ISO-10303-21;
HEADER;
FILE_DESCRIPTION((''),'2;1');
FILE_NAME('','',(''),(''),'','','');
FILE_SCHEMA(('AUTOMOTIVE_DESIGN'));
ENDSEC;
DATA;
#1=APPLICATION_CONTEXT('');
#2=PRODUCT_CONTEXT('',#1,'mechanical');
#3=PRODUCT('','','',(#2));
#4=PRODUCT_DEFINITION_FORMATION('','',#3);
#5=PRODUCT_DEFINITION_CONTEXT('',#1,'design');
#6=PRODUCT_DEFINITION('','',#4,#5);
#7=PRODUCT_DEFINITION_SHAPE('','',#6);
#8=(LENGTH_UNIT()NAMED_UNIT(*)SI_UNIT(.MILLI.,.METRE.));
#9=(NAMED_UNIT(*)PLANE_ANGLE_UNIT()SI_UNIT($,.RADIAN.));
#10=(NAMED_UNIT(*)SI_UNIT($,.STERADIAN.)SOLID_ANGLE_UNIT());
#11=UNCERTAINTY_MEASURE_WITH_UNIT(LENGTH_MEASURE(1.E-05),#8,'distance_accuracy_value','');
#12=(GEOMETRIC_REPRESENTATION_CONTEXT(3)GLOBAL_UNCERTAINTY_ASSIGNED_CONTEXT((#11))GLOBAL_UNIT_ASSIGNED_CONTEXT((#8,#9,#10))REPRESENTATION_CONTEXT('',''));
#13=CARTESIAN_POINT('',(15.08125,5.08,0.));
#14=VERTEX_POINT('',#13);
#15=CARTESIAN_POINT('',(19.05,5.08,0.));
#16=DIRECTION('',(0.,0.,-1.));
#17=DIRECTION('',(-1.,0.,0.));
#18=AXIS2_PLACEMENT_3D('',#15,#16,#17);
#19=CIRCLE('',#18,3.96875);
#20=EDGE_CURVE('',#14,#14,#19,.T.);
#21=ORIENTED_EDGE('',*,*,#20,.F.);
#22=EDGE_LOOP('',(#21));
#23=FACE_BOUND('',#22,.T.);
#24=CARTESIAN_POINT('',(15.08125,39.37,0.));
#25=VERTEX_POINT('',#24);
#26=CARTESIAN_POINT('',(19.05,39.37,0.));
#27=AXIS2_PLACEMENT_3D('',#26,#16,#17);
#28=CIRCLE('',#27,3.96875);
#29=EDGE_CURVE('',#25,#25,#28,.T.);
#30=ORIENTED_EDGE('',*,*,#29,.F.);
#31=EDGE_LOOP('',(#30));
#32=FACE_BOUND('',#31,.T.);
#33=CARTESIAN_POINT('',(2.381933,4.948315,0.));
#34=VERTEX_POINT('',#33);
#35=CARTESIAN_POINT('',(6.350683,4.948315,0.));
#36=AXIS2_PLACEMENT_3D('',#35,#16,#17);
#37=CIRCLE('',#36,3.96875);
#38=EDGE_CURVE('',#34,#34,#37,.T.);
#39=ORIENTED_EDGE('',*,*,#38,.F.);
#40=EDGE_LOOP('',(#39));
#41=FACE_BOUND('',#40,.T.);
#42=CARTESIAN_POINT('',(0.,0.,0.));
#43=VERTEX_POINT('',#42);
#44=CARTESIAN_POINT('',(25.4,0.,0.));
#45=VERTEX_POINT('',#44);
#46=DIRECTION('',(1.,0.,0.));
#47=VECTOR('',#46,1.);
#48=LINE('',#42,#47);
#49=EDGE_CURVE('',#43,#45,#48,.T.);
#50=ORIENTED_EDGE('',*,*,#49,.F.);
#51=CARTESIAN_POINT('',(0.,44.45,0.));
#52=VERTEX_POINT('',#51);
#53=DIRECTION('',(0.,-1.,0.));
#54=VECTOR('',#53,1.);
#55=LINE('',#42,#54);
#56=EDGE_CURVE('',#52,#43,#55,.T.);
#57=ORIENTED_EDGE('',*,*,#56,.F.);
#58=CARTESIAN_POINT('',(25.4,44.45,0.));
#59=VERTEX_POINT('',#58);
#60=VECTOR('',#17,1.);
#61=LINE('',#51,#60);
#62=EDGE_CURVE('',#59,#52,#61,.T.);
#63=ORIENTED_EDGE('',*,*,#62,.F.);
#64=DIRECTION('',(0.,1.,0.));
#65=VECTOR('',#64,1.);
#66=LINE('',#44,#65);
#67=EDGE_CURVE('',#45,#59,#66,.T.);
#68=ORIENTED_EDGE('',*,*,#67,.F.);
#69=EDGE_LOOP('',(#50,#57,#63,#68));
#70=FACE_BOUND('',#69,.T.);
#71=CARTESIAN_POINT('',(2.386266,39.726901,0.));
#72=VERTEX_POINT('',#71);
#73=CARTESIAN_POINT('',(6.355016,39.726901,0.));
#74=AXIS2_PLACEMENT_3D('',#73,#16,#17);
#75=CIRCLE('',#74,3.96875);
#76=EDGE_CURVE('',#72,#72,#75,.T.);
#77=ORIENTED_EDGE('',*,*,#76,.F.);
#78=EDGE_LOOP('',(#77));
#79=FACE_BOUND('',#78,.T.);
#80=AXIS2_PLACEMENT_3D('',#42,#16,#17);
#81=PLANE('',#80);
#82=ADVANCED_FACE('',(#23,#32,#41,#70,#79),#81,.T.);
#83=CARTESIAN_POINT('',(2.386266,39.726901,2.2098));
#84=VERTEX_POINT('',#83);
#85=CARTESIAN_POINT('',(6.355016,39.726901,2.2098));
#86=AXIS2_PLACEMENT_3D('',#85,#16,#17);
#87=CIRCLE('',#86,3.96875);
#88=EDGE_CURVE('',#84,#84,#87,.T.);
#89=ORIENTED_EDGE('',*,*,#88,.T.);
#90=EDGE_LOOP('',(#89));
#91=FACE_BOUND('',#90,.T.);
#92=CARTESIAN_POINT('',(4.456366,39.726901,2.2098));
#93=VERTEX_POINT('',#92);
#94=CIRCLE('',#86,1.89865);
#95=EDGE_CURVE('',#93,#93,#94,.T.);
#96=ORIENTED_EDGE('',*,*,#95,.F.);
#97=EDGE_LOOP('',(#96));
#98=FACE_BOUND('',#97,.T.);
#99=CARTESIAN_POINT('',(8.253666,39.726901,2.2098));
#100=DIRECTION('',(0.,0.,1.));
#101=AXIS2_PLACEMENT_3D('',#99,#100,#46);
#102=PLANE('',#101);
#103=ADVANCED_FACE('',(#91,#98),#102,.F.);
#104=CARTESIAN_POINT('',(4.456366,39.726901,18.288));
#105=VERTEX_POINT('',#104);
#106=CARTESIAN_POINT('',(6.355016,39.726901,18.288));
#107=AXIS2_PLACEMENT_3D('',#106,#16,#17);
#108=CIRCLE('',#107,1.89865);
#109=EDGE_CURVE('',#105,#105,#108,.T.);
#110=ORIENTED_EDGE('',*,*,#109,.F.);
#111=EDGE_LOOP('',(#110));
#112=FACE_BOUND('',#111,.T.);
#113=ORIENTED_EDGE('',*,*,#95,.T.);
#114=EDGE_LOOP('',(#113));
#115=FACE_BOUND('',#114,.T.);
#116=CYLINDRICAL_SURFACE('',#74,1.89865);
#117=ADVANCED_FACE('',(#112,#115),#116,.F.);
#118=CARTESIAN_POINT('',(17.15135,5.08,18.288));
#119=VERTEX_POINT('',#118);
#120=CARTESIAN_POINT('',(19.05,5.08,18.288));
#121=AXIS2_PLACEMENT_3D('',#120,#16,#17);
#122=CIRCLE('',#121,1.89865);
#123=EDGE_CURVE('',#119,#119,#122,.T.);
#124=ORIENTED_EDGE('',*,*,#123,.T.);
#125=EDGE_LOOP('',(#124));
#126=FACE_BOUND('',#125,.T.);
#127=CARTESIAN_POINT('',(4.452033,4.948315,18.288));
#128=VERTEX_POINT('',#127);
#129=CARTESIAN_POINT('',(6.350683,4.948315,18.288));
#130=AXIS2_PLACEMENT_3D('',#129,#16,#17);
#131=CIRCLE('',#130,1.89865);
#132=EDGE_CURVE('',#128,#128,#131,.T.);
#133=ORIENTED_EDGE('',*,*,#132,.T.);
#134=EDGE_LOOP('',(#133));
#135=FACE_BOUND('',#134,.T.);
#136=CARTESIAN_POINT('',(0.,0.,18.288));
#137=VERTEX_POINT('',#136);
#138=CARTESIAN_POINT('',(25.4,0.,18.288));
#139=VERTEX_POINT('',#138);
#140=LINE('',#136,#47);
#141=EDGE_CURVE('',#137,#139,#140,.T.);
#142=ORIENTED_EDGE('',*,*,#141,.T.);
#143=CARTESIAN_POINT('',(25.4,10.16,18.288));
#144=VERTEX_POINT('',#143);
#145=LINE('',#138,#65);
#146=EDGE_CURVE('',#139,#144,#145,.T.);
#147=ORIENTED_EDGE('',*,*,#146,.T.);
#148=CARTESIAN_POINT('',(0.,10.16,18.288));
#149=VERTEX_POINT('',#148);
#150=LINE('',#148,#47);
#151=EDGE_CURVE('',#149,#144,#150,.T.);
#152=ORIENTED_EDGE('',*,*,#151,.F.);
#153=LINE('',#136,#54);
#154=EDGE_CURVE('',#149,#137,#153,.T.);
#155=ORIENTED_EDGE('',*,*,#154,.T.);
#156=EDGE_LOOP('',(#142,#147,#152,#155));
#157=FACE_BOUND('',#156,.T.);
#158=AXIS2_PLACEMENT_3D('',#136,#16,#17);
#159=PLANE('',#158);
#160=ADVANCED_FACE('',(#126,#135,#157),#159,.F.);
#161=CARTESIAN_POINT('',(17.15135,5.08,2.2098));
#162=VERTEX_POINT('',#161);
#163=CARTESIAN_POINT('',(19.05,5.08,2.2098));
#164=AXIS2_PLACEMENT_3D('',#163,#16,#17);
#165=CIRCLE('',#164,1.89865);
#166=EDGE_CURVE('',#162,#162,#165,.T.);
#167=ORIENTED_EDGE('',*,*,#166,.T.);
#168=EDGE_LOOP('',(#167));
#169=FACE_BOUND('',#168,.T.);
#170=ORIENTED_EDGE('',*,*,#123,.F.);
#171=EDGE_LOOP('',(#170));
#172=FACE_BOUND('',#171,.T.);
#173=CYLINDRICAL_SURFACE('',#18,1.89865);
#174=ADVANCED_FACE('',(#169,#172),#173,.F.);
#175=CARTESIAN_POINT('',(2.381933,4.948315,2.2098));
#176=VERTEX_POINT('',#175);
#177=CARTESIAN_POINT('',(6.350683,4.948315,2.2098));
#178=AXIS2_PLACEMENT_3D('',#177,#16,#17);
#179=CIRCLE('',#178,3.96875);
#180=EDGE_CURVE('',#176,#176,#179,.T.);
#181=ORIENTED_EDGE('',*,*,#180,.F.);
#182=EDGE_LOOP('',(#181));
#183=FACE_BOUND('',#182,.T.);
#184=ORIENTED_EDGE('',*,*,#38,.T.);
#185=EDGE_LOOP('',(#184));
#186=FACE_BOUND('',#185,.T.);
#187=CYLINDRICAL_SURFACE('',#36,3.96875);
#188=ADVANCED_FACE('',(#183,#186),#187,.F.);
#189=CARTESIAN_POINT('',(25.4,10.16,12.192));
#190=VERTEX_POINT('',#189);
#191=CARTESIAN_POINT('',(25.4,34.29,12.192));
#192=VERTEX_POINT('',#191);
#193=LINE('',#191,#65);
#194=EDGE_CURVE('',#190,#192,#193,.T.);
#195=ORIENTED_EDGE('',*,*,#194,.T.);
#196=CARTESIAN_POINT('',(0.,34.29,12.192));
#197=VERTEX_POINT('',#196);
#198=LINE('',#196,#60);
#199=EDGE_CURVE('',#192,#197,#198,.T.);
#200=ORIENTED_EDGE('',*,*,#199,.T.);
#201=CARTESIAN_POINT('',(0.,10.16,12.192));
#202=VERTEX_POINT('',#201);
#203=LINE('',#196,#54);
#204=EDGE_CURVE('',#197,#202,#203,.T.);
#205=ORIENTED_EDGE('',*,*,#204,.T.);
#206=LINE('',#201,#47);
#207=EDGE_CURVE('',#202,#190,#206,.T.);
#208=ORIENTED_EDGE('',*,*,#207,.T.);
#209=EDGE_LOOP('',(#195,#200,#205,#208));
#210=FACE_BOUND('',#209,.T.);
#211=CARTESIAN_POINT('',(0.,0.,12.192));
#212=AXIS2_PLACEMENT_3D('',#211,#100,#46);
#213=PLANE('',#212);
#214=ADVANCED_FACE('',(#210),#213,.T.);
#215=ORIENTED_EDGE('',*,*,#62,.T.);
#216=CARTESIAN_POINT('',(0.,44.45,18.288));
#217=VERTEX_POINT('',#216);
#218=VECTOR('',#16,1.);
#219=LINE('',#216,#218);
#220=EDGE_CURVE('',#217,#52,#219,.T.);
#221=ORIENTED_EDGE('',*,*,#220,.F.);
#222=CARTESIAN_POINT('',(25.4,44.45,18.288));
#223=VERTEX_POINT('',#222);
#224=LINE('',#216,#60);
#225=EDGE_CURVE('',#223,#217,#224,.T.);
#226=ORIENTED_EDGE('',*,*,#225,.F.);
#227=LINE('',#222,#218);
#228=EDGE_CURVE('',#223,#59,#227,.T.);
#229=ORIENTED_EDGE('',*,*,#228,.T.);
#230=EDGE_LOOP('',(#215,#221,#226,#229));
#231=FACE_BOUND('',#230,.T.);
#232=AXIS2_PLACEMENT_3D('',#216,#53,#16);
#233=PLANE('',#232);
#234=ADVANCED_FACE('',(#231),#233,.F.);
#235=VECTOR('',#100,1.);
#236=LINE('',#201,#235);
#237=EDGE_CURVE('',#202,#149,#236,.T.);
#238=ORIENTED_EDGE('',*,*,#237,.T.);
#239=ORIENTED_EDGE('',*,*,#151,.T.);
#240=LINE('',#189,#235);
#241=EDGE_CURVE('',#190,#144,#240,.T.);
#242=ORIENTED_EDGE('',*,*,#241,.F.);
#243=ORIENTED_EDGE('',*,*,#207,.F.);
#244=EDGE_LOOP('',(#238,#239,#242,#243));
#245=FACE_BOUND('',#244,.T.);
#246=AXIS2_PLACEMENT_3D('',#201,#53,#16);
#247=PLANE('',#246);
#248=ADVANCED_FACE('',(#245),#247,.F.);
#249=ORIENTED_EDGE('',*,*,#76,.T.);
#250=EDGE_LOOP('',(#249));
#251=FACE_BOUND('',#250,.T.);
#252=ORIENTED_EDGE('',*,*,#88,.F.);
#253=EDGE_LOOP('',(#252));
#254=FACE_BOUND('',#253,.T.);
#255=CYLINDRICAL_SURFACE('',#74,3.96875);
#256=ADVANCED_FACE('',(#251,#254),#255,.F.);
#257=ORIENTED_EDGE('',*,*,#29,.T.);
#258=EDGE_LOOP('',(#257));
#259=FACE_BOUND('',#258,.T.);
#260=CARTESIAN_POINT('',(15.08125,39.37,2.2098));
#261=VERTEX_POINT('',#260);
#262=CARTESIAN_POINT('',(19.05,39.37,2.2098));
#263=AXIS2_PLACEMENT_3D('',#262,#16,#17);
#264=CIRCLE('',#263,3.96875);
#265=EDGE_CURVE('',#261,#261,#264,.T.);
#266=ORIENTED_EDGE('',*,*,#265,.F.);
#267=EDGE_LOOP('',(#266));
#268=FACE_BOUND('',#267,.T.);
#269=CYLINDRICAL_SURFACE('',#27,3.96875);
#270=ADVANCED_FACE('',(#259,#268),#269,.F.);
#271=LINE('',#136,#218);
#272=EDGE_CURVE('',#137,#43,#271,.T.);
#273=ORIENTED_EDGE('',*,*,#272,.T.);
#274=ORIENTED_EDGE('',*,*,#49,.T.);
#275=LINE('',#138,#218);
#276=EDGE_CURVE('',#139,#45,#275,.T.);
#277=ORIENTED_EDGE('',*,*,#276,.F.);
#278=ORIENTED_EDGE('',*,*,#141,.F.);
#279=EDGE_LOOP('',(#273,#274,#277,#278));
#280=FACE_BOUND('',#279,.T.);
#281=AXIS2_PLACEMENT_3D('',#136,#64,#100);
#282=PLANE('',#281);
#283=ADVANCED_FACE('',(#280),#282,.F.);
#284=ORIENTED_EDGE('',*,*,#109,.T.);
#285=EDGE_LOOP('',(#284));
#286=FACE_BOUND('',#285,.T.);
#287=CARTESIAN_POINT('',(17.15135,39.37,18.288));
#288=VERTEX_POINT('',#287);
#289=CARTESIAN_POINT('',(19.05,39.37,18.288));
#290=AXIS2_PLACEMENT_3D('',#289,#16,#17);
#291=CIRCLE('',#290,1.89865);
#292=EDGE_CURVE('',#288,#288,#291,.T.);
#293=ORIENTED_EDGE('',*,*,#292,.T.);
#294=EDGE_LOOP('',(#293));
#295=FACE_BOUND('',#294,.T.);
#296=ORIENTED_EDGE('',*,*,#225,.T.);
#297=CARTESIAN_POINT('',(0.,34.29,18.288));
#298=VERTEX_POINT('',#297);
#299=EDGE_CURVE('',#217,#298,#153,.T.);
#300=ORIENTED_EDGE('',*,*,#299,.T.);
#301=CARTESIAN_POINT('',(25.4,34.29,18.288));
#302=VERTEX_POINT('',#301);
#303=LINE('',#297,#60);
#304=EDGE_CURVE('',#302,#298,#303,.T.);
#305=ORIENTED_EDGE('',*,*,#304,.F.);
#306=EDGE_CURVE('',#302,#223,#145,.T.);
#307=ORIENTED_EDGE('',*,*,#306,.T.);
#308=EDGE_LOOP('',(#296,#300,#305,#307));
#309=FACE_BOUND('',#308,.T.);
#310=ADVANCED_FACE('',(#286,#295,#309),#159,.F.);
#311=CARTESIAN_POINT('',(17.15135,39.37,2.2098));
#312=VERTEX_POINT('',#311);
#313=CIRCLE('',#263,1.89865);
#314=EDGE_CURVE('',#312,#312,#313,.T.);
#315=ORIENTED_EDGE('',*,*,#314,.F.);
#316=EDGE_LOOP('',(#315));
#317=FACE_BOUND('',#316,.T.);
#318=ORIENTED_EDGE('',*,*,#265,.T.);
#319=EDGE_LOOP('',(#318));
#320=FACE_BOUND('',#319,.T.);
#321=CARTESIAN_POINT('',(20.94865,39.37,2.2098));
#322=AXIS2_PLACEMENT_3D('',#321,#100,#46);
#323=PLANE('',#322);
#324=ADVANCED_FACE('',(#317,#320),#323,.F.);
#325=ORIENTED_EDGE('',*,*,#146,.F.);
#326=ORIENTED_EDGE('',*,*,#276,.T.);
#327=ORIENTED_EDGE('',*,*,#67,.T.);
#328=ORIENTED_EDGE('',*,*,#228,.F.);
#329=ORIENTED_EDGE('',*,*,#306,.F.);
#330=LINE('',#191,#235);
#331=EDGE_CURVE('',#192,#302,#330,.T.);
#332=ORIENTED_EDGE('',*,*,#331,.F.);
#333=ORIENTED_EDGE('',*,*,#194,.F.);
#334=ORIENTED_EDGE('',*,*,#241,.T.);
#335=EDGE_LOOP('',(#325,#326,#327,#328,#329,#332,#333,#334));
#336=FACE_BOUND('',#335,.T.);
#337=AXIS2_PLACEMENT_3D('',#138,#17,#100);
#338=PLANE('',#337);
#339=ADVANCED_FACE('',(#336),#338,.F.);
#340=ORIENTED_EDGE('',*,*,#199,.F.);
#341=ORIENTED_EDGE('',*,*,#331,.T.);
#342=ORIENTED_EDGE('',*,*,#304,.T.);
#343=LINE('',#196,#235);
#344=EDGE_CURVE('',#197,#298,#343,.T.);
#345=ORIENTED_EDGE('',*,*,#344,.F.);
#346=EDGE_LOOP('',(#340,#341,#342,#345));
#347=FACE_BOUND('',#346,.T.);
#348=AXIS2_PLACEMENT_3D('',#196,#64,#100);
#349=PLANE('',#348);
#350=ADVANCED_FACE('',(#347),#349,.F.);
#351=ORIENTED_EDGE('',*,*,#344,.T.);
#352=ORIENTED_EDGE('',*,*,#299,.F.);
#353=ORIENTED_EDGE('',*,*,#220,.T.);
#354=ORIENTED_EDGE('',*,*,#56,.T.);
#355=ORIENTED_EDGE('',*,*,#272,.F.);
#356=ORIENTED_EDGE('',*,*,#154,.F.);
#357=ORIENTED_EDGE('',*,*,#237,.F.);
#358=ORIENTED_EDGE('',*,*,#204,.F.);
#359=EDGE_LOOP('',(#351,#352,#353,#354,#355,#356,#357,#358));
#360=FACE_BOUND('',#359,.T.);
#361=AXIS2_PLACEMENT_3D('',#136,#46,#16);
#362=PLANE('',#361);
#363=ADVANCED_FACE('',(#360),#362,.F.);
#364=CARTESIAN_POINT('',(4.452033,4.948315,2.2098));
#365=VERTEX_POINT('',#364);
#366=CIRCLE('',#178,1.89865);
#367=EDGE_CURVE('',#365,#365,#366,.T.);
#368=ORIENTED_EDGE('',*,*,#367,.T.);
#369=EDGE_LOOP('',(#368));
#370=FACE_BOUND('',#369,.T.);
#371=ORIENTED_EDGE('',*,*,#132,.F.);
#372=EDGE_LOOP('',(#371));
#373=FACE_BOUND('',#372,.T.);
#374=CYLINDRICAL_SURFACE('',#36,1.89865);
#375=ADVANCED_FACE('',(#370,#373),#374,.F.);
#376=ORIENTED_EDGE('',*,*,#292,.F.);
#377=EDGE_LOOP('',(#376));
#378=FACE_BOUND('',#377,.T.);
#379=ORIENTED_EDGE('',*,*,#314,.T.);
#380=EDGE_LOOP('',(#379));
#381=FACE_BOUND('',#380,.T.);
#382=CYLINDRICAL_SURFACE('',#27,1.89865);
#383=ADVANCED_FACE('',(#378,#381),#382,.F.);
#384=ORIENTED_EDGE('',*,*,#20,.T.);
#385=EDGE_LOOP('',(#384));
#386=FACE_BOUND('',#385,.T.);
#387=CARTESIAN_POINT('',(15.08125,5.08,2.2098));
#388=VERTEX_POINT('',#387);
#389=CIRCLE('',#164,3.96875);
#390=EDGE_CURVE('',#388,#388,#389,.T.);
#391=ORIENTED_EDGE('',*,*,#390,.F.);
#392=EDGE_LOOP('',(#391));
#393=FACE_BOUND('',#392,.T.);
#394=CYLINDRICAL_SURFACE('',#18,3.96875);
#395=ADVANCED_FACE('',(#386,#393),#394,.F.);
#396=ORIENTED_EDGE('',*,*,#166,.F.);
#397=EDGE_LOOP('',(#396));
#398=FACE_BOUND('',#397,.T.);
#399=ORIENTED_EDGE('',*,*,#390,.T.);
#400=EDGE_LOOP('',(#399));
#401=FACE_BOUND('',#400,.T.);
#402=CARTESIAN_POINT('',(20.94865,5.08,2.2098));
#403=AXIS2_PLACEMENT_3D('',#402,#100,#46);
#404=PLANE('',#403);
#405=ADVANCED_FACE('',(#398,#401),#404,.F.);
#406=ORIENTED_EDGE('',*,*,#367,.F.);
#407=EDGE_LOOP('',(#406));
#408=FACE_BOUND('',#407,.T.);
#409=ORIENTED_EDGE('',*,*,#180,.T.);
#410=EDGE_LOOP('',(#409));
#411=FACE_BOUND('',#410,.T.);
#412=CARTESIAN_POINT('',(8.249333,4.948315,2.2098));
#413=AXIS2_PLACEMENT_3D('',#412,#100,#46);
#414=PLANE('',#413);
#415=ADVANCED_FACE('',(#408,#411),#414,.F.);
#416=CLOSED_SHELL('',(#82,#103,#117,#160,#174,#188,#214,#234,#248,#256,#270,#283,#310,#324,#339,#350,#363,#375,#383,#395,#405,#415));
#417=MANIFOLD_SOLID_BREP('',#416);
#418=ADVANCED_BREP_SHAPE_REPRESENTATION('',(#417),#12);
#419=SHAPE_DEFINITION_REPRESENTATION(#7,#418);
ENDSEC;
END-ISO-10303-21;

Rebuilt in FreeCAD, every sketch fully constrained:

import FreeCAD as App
import Part
import Sketcher

V = App.Vector
Q = App.Units.Quantity


def add_polygon(sketch, points):
    """Adds a closed chain of lines whose ends are joined by coincident constraints."""
    first, n = sketch.GeometryCount, len(points)
    for a, b in zip(points, points[1:] + points[:1]):
        sketch.addGeometry(Part.LineSegment(App.Vector(*a, 0), App.Vector(*b, 0)), False)
    for i in range(n):
        sketch.addConstraint(Sketcher.Constraint("Coincident", first + i, 2, first + (i + 1) % n, 1))

doc = App.newDocument("Part")
body = doc.addObject("PartDesign::Body", "Body")

sketch1 = body.newObject("Sketcher::SketchObject", "Sketch")
sketch1.AttachmentSupport = (doc.getObject("XY_Plane"), [""])
sketch1.MapMode = "FlatFace"
add_polygon(sketch1, [(0, 44.45), (0, 0), (25.4, 0), (25.4, 44.45)])
sketch1.addConstraint([
    Sketcher.Constraint("Vertical", 0),
    Sketcher.Constraint("Horizontal", 1),
    Sketcher.Constraint("Vertical", 2),
    Sketcher.Constraint("Horizontal", 3),
    Sketcher.Constraint("Coincident", 0, 2, -1, 1),
    Sketcher.Constraint("DistanceX", 1, 1, 1, 2, Q("1 in")),
    Sketcher.Constraint("DistanceY", 0, 2, 0, 1, Q("1.75 in")),
])
pad1 = body.newObject("PartDesign::Pad", "Pad")
pad1.Profile = sketch1
pad1.Length = Q("0.72 in")

sketch2 = body.newObject("Sketcher::SketchObject", "Sketch001")
sketch2.AttachmentSupport = (doc.getObject("XY_Plane"), [""])
sketch2.MapMode = "FlatFace"
sketch2.AttachmentOffset = App.Placement(V(0, 0, 0.72 * 25.4), App.Rotation())
add_polygon(sketch2, [(0, 34.29), (0, 10.16), (25.4, 10.16), (25.4, 34.29)])
sketch2.addConstraint([
    Sketcher.Constraint("Vertical", 0),
    Sketcher.Constraint("Horizontal", 1),
    Sketcher.Constraint("Vertical", 2),
    Sketcher.Constraint("Horizontal", 3),
    Sketcher.Constraint("PointOnObject", 0, 2, -2),
    Sketcher.Constraint("DistanceX", 1, 1, 1, 2, Q("1 in")),
    Sketcher.Constraint("DistanceY", 0, 2, 0, 1, Q("0.95 in")),
    Sketcher.Constraint("DistanceY", -1, 1, 0, 2, Q("0.4 in")),
])
pocket1 = body.newObject("PartDesign::Pocket", "Pocket")
pocket1.Profile = sketch2
pocket1.Length = Q("0.24 in")

sketch3 = body.newObject("Sketcher::SketchObject", "Sketch002")
sketch3.AttachmentSupport = (doc.getObject("XY_Plane"), [""])
sketch3.MapMode = "FlatFace"
sketch3.addGeometry([
    Part.Circle(V(19.05, 5.08, 0), V(0, 0, 1), 1.89865),
    Part.Circle(V(6.350683, 4.948315, 0), V(0, 0, 1), 1.89865),
    Part.Circle(V(19.05, 39.37, 0), V(0, 0, 1), 1.89865),
    Part.Circle(V(6.355016, 39.726901, 0), V(0, 0, 1), 1.89865),
], False)
sketch3.addConstraint([
    Sketcher.Constraint("Equal", 0, 1),
    Sketcher.Constraint("Equal", 1, 2),
    Sketcher.Constraint("Equal", 2, 3),
    Sketcher.Constraint("Vertical", 0, 3, 2, 3),
    Sketcher.Constraint("Diameter", 0, Q("0.1495 in")),
    Sketcher.Constraint("DistanceY", -1, 1, 0, 3, Q("0.2 in")),
    Sketcher.Constraint("DistanceX", -1, 1, 0, 3, Q("0.75 in")),
    Sketcher.Constraint("DistanceY", -1, 1, 2, 3, Q("1.55 in")),
    Sketcher.Constraint("DistanceY", -1, 1, 3, 3, 39.726901),
    Sketcher.Constraint("DistanceX", -1, 1, 1, 3, 6.350683),
    Sketcher.Constraint("DistanceY", -1, 1, 1, 3, 4.948315),
    Sketcher.Constraint("DistanceX", -1, 1, 3, 3, 6.355016),
])
doc.recompute()
hole = body.newObject("PartDesign::Hole", "Hole")
hole.Profile = sketch3
hole.ThreadType = "None"
hole.Diameter = Q("0.1495 in")
hole.DepthType = "ThroughAll"
hole.HoleCutType = "Counterbore"
hole.HoleCutDiameter = Q("0.3125 in")
hole.HoleCutDepth = Q("0.087 in")
hole.Reversed = True

doc.recompute()
